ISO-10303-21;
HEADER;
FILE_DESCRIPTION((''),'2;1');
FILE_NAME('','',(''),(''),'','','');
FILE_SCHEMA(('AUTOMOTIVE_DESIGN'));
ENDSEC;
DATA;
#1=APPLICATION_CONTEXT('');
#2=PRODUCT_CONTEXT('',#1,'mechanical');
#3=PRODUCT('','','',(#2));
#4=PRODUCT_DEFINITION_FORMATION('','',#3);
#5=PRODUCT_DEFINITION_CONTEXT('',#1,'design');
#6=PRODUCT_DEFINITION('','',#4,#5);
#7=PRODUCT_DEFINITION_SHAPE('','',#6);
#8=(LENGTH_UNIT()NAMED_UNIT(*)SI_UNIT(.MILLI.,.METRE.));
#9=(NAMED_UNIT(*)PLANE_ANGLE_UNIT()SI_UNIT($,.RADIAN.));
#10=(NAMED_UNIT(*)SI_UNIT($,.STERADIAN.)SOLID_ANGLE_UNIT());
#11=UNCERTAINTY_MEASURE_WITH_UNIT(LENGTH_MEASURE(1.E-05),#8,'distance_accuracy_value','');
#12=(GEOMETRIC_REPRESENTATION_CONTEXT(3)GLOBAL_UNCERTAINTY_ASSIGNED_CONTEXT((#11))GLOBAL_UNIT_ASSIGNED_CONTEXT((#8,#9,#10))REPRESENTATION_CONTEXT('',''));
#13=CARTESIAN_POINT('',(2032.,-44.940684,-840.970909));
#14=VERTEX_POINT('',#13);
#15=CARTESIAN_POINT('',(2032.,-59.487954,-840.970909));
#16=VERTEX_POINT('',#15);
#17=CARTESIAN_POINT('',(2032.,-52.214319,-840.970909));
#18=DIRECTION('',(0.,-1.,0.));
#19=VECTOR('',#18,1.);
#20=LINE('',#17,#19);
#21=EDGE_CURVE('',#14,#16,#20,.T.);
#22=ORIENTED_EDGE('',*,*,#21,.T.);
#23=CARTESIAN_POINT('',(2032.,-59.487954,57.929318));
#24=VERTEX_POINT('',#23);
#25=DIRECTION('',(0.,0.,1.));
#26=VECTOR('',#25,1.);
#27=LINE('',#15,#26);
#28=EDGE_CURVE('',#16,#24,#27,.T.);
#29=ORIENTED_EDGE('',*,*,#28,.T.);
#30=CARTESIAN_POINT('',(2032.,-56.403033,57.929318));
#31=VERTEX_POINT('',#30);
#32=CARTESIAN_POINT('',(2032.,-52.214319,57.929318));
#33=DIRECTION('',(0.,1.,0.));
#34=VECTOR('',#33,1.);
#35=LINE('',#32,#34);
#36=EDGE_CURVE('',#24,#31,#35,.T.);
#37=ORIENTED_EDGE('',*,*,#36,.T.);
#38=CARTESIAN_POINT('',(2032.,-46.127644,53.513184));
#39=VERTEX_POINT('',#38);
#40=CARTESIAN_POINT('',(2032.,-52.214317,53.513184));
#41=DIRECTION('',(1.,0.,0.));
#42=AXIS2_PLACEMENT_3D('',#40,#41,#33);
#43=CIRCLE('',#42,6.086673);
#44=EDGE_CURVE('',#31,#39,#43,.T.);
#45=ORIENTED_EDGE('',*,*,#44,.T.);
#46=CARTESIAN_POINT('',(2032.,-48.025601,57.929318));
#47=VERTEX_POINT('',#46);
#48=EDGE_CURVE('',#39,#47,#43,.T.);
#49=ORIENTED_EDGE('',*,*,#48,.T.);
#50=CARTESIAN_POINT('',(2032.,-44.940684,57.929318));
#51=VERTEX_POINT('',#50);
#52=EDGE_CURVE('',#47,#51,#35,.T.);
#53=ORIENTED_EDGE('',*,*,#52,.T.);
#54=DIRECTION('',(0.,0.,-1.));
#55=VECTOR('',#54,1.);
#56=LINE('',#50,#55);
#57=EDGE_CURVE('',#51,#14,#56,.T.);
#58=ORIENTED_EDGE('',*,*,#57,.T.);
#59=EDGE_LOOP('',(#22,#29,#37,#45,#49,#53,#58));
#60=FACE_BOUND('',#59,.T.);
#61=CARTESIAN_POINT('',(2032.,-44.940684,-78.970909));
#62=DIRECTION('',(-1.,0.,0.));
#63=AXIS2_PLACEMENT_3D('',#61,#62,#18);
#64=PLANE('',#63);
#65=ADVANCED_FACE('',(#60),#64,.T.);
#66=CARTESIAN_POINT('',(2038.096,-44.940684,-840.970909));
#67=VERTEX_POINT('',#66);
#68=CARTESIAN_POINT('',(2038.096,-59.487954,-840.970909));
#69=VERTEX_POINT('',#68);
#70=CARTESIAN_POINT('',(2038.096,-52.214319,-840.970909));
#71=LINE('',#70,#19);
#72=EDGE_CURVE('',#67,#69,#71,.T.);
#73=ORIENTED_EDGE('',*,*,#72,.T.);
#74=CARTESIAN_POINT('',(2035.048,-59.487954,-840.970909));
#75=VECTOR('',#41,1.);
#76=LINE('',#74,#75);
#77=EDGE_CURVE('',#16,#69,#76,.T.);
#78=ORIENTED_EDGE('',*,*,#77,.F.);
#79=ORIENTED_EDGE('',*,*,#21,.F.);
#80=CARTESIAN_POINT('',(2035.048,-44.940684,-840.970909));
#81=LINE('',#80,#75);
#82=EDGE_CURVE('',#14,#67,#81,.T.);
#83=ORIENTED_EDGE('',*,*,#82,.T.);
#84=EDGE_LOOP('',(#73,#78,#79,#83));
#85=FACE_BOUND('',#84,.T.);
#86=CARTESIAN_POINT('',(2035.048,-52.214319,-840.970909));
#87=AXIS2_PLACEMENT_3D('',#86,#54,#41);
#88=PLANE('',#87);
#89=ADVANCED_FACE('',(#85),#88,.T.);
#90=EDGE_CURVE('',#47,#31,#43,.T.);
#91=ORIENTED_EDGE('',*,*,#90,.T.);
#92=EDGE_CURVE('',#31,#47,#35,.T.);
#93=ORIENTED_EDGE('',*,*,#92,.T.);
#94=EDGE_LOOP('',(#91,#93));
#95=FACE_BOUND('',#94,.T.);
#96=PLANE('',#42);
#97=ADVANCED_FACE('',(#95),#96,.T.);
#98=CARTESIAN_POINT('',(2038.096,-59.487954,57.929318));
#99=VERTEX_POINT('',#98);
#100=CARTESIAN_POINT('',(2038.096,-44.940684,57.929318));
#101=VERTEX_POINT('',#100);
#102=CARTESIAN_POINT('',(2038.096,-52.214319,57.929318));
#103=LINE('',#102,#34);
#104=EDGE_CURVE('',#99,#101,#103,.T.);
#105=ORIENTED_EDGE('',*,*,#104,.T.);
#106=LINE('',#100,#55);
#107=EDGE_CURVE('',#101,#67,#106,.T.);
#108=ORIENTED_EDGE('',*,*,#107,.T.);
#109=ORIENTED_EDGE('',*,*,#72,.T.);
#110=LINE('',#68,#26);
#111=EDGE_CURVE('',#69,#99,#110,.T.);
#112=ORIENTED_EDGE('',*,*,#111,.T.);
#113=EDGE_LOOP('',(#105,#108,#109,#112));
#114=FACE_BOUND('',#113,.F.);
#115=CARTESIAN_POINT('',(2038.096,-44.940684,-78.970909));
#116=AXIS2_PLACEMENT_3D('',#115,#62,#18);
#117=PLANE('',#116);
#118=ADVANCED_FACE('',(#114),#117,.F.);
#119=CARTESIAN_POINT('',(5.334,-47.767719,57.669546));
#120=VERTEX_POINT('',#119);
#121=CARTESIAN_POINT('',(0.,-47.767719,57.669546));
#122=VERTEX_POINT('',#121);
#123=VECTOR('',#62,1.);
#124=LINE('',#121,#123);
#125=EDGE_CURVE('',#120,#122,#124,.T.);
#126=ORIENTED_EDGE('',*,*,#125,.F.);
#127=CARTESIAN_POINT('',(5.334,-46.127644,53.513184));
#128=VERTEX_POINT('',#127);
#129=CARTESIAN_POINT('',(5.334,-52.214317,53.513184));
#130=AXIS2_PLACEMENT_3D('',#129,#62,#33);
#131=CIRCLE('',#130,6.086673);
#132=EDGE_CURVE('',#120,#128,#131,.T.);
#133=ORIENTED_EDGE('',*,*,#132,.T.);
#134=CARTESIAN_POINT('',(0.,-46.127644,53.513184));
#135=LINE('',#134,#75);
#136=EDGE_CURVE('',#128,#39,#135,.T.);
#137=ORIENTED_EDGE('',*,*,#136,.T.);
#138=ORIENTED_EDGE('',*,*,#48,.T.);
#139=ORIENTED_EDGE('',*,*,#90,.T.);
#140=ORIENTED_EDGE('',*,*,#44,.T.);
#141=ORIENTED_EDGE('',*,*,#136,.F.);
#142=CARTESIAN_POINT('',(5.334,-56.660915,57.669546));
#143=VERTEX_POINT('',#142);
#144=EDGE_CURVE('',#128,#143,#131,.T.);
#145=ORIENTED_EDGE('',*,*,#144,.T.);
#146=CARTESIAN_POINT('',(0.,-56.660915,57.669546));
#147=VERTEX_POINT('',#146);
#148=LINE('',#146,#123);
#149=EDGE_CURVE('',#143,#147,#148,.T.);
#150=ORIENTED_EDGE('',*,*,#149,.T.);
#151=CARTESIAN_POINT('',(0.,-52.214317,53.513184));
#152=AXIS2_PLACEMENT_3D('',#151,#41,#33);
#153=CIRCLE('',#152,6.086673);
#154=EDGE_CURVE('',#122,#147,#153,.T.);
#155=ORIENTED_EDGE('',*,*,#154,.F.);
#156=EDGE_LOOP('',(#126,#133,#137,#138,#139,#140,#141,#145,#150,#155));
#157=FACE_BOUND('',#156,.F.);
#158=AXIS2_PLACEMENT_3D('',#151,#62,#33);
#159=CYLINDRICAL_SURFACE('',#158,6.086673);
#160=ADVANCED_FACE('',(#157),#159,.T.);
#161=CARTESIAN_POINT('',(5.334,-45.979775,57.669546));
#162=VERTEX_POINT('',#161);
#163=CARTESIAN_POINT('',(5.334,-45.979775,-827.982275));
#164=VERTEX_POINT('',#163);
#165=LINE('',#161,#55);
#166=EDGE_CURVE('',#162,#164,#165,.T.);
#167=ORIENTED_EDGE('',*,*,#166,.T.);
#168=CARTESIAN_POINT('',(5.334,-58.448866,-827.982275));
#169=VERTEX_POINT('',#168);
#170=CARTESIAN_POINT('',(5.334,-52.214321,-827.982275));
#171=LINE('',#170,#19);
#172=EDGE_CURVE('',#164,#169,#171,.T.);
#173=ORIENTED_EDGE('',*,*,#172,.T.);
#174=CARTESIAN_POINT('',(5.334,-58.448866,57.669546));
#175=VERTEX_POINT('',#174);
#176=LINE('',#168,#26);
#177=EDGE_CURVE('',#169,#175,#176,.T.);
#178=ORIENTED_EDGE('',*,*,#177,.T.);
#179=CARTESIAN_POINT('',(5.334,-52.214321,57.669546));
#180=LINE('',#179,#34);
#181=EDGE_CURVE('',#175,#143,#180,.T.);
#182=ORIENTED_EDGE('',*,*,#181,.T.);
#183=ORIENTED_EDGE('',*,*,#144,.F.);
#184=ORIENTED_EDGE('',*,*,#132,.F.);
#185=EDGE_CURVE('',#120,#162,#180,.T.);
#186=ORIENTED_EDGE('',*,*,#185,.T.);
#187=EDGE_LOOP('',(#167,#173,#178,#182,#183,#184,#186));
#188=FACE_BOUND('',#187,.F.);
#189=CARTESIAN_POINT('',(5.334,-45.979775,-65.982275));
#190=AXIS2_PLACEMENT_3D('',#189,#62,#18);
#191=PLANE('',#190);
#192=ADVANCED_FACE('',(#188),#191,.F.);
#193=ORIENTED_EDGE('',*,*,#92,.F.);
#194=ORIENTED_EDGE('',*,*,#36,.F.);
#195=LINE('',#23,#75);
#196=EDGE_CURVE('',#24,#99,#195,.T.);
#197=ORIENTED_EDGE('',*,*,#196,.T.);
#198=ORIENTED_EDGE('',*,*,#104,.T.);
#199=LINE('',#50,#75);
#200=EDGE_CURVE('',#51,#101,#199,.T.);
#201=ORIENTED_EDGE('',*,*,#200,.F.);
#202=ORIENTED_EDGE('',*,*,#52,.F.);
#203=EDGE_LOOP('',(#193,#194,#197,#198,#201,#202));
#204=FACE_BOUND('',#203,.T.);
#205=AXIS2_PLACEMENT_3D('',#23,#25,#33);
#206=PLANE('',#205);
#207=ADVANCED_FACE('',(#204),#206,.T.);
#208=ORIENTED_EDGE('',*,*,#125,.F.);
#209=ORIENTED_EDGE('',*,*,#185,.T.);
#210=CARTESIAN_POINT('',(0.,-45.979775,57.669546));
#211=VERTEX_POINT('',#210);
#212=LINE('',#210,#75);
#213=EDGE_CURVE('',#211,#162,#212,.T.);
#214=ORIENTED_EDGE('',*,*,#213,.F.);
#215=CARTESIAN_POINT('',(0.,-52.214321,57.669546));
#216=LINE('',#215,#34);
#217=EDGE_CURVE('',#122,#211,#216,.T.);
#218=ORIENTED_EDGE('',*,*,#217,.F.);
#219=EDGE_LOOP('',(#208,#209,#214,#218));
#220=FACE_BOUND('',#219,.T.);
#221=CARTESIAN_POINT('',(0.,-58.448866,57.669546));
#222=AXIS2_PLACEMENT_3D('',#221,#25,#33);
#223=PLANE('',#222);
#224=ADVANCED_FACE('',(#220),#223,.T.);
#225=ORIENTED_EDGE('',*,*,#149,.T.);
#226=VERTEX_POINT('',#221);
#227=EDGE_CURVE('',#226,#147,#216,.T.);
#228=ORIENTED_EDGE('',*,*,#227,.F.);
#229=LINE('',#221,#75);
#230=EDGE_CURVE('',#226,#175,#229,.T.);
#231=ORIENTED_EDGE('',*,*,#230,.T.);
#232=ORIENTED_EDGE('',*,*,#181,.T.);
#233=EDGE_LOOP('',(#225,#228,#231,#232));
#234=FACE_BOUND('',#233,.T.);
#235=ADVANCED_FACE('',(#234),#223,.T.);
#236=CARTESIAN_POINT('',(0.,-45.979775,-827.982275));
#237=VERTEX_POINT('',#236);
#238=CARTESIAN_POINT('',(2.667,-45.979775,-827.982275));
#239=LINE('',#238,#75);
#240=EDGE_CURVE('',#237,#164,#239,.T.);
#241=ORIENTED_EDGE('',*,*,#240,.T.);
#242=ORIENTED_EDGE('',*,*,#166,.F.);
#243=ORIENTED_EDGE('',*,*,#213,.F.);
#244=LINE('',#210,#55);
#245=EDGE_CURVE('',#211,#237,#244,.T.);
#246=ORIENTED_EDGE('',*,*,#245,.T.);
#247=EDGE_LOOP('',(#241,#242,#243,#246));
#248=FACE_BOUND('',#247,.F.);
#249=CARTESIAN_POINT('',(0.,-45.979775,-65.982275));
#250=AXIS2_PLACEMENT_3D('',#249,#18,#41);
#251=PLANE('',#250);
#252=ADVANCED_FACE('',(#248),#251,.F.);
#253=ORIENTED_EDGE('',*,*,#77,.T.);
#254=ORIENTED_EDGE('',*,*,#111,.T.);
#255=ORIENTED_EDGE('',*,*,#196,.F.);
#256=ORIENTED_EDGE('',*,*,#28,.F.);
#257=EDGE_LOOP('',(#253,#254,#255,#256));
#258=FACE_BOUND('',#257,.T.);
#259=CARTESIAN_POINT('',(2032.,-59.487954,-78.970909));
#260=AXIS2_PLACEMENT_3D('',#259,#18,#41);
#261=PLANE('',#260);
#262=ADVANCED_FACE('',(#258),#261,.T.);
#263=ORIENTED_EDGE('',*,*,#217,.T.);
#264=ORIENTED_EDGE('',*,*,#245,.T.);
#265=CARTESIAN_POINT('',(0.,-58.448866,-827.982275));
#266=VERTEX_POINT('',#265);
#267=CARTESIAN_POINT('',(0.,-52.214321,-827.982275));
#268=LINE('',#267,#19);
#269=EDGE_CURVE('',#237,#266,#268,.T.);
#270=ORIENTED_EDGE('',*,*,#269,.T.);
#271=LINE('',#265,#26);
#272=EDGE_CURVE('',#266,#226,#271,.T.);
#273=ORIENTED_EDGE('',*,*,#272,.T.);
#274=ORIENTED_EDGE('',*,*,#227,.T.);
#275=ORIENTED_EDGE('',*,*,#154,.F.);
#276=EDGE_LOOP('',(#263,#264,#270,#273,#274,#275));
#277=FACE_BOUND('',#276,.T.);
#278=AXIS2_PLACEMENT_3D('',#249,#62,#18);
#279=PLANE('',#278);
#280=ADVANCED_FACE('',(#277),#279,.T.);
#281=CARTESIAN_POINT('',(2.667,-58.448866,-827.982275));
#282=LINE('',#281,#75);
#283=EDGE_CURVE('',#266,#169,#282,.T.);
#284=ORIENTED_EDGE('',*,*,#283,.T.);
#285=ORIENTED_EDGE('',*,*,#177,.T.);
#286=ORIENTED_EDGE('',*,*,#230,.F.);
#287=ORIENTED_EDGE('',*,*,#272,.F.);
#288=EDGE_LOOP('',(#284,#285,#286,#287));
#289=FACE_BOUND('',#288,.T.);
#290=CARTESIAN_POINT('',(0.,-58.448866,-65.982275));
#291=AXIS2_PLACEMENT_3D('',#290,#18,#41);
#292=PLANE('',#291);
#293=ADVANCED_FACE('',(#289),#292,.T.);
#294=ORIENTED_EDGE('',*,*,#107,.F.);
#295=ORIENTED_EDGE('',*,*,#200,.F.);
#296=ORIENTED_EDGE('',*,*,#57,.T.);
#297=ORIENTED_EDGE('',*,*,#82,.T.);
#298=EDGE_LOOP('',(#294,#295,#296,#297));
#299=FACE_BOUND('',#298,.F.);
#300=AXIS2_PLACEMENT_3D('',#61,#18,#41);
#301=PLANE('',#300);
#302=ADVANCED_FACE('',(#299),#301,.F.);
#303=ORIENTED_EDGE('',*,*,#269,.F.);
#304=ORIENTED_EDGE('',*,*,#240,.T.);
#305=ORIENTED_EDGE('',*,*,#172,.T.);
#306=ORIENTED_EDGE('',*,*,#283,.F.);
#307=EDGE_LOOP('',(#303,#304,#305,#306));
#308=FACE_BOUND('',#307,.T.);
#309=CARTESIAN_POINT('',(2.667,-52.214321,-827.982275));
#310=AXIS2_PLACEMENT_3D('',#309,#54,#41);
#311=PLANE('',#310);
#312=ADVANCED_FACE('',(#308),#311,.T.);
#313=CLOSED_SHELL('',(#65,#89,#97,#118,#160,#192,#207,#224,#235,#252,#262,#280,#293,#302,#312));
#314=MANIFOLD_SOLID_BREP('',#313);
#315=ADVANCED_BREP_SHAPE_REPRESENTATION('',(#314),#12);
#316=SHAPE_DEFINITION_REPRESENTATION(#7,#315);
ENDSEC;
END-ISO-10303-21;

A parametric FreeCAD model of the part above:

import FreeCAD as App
import Part
import Sketcher
Q = App.Units.Quantity

doc = App.newDocument("Part")
params = doc.addObject("Spreadsheet::Sheet", "Params")
for row, (alias, value) in enumerate([
    ("pad1_length", "80 in"),
    ("pad2_length", "0.21 in"),
    ("pad3_length", "0.24 in"),
    ("sketch4_width", "0.24 in"),
    ("pad4_length", "30 in"),
    ("sketch5_width", "0.21 in"),
    ("pad5_length", "30 in"),
], start=1):
    params.set(f"A{row}", alias)
    params.set(f"B{row}", "=" + value)
    params.setAlias(f"B{row}", alias)

body = doc.addObject("PartDesign::Body", "Body")

sketch1 = body.newObject("Sketcher::SketchObject", "Sketch")
sketch1.AttachmentSupport = (doc.getObject("YZ_Plane"), [""])
sketch1.MapMode = "FlatFace"
sketch1.addGeometry(Part.Circle(App.Vector(-52.214317, 53.513184, 0), App.Vector(0, 0, 1), 6.086673), False)
sketch1.addConstraint([
    Sketcher.Constraint("Diameter", 0, 12.173345),
    Sketcher.Constraint("DistanceX", 0, 3, -1, 1, 52.214317),
    Sketcher.Constraint("DistanceY", -1, 1, 0, 3, 53.513184),
])
pad1 = body.newObject("PartDesign::Pad", "Pad")
pad1.Profile = sketch1
pad1.setExpression("Length", "Params.pad1_length")

sketch2 = body.newObject("Sketcher::SketchObject", "Sketch001")
sketch2.AttachmentSupport = (doc.getObject("YZ_Plane"), [""])
sketch2.MapMode = "FlatFace"
sketch2.addGeometry([
    Part.LineSegment(App.Vector(-58.448866, 57.669546, 0), App.Vector(-58.448866, -65.982275, 0)),
    Part.LineSegment(App.Vector(-58.448866, -65.982275, 0), App.Vector(-45.979775, -65.982275, 0)),
    Part.LineSegment(App.Vector(-45.979775, -65.982275, 0), App.Vector(-45.979775, 57.669546, 0)),
    Part.LineSegment(App.Vector(-45.979775, 57.669546, 0), App.Vector(-58.448866, 57.669546, 0)),
], False)
sketch2.addConstraint([
    Sketcher.Constraint("Coincident", 0, 2, 1, 1),
    Sketcher.Constraint("Coincident", 1, 2, 2, 1),
    Sketcher.Constraint("Coincident", 2, 2, 3, 1),
    Sketcher.Constraint("Coincident", 3, 2, 0, 1),
    Sketcher.Constraint("Vertical", 0),
    Sketcher.Constraint("Horizontal", 1),
    Sketcher.Constraint("Vertical", 2),
    Sketcher.Constraint("Horizontal", 3),
    Sketcher.Constraint("DistanceX", 1, 1, 1, 2, 12.469091),
    Sketcher.Constraint("DistanceY", 0, 2, 0, 1, 123.651821),
    Sketcher.Constraint("DistanceX", 0, 2, -1, 1, 58.448866),
    Sketcher.Constraint("DistanceY", 0, 2, -1, 1, 65.982275),
])
pad2 = body.newObject("PartDesign::Pad", "Pad001")
pad2.Profile = sketch2
pad2.setExpression("Length", "Params.pad2_length")

sketch3 = body.newObject("Sketcher::SketchObject", "Sketch002")
sketch3.AttachmentSupport = (doc.getObject("YZ_Plane"), [""])
sketch3.MapMode = "FlatFace"
sketch3.AttachmentOffset = App.Placement(App.Vector(0, 0, 80 * 25.4), App.Rotation())
sketch3.addGeometry([
    Part.LineSegment(App.Vector(-59.487954, 57.929318, 0), App.Vector(-59.487954, -78.970909, 0)),
    Part.LineSegment(App.Vector(-59.487954, -78.970909, 0), App.Vector(-44.940684, -78.970909, 0)),
    Part.LineSegment(App.Vector(-44.940684, -78.970909, 0), App.Vector(-44.940684, 57.929318, 0)),
    Part.LineSegment(App.Vector(-44.940684, 57.929318, 0), App.Vector(-59.487954, 57.929318, 0)),
], False)
sketch3.addConstraint([
    Sketcher.Constraint("Coincident", 0, 2, 1, 1),
    Sketcher.Constraint("Coincident", 1, 2, 2, 1),
    Sketcher.Constraint("Coincident", 2, 2, 3, 1),
    Sketcher.Constraint("Coincident", 3, 2, 0, 1),
    Sketcher.Constraint("Vertical", 0),
    Sketcher.Constraint("Horizontal", 1),
    Sketcher.Constraint("Vertical", 2),
    Sketcher.Constraint("Horizontal", 3),
    Sketcher.Constraint("DistanceX", 1, 1, 1, 2, 14.54727),
    Sketcher.Constraint("DistanceY", 0, 2, 0, 1, 136.900228),
    Sketcher.Constraint("DistanceY", 0, 2, -1, 1, 78.970909),
    Sketcher.Constraint("DistanceX", 0, 2, -1, 1, 59.487954),
])
pad3 = body.newObject("PartDesign::Pad", "Pad002")
pad3.Profile = sketch3
pad3.setExpression("Length", "Params.pad3_length")

sketch4 = body.newObject("Sketcher::SketchObject", "Sketch003")
sketch4.AttachmentSupport = (doc.getObject("XY_Plane"), [""])
sketch4.MapMode = "FlatFace"
sketch4.AttachmentOffset = App.Placement(App.Vector(0, 0, -78.970909), App.Rotation())
sketch4.addGeometry([
    Part.LineSegment(App.Vector(2032, -59.487954, 0), App.Vector(2032, -44.940684, 0)),
    Part.LineSegment(App.Vector(2032, -44.940684, 0), App.Vector(2038.096, -44.940684, 0)),
    Part.LineSegment(App.Vector(2038.096, -44.940684, 0), App.Vector(2038.096, -59.487954, 0)),
    Part.LineSegment(App.Vector(2038.096, -59.487954, 0), App.Vector(2032, -59.487954, 0)),
], False)
sketch4.addConstraint([
    Sketcher.Constraint("Coincident", 0, 2, 1, 1),
    Sketcher.Constraint("Coincident", 1, 2, 2, 1),
    Sketcher.Constraint("Coincident", 2, 2, 3, 1),
    Sketcher.Constraint("Coincident", 3, 2, 0, 1),
    Sketcher.Constraint("Vertical", 0),
    Sketcher.Constraint("Horizontal", 1),
    Sketcher.Constraint("Vertical", 2),
    Sketcher.Constraint("Horizontal", 3),
    Sketcher.Constraint("DistanceX", -1, 1, 0, 2, Q("80 in")),
    Sketcher.Constraint("DistanceX", 1, 1, 1, 2, Q("0.24 in")),
    Sketcher.Constraint("DistanceY", 0, 1, 0, 2, 14.54727),
    Sketcher.Constraint("DistanceY", 0, 2, -1, 1, 44.940684),
])
sketch4.setExpression("Constraints[9]", "Params.sketch4_width")
pad4 = body.newObject("PartDesign::Pad", "Pad003")
pad4.Profile = sketch4
pad4.setExpression("Length", "Params.pad4_length")
pad4.Reversed = True

sketch5 = body.newObject("Sketcher::SketchObject", "Sketch004")
sketch5.AttachmentSupport = (doc.getObject("XY_Plane"), [""])
sketch5.MapMode = "FlatFace"
sketch5.AttachmentOffset = App.Placement(App.Vector(0, 0, -65.982275), App.Rotation())
sketch5.addGeometry([
    Part.LineSegment(App.Vector(0, -58.448866, 0), App.Vector(0, -45.979775, 0)),
    Part.LineSegment(App.Vector(0, -45.979775, 0), App.Vector(5.334, -45.979775, 0)),
    Part.LineSegment(App.Vector(5.334, -45.979775, 0), App.Vector(5.334, -58.448866, 0)),
    Part.LineSegment(App.Vector(5.334, -58.448866, 0), App.Vector(0, -58.448866, 0)),
], False)
sketch5.addConstraint([
    Sketcher.Constraint("Coincident", 0, 2, 1, 1),
    Sketcher.Constraint("Coincident", 1, 2, 2, 1),
    Sketcher.Constraint("Coincident", 2, 2, 3, 1),
    Sketcher.Constraint("Coincident", 3, 2, 0, 1),
    Sketcher.Constraint("Vertical", 0),
    Sketcher.Constraint("Horizontal", 1),
    Sketcher.Constraint("Vertical", 2),
    Sketcher.Constraint("Horizontal", 3),
    Sketcher.Constraint("PointOnObject", 0, 2, -2),
    Sketcher.Constraint("DistanceX", 1, 1, 1, 2, Q("0.21 in")),
    Sketcher.Constraint("DistanceY", 0, 1, 0, 2, 12.469091),
    Sketcher.Constraint("DistanceY", 0, 2, -1, 1, 45.979775),
])
sketch5.setExpression("Constraints[9]", "Params.sketch5_width")
pad5 = body.newObject("PartDesign::Pad", "Pad004")
pad5.Profile = sketch5
pad5.setExpression("Length", "Params.pad5_length")
pad5.Reversed = True

doc.recompute()
